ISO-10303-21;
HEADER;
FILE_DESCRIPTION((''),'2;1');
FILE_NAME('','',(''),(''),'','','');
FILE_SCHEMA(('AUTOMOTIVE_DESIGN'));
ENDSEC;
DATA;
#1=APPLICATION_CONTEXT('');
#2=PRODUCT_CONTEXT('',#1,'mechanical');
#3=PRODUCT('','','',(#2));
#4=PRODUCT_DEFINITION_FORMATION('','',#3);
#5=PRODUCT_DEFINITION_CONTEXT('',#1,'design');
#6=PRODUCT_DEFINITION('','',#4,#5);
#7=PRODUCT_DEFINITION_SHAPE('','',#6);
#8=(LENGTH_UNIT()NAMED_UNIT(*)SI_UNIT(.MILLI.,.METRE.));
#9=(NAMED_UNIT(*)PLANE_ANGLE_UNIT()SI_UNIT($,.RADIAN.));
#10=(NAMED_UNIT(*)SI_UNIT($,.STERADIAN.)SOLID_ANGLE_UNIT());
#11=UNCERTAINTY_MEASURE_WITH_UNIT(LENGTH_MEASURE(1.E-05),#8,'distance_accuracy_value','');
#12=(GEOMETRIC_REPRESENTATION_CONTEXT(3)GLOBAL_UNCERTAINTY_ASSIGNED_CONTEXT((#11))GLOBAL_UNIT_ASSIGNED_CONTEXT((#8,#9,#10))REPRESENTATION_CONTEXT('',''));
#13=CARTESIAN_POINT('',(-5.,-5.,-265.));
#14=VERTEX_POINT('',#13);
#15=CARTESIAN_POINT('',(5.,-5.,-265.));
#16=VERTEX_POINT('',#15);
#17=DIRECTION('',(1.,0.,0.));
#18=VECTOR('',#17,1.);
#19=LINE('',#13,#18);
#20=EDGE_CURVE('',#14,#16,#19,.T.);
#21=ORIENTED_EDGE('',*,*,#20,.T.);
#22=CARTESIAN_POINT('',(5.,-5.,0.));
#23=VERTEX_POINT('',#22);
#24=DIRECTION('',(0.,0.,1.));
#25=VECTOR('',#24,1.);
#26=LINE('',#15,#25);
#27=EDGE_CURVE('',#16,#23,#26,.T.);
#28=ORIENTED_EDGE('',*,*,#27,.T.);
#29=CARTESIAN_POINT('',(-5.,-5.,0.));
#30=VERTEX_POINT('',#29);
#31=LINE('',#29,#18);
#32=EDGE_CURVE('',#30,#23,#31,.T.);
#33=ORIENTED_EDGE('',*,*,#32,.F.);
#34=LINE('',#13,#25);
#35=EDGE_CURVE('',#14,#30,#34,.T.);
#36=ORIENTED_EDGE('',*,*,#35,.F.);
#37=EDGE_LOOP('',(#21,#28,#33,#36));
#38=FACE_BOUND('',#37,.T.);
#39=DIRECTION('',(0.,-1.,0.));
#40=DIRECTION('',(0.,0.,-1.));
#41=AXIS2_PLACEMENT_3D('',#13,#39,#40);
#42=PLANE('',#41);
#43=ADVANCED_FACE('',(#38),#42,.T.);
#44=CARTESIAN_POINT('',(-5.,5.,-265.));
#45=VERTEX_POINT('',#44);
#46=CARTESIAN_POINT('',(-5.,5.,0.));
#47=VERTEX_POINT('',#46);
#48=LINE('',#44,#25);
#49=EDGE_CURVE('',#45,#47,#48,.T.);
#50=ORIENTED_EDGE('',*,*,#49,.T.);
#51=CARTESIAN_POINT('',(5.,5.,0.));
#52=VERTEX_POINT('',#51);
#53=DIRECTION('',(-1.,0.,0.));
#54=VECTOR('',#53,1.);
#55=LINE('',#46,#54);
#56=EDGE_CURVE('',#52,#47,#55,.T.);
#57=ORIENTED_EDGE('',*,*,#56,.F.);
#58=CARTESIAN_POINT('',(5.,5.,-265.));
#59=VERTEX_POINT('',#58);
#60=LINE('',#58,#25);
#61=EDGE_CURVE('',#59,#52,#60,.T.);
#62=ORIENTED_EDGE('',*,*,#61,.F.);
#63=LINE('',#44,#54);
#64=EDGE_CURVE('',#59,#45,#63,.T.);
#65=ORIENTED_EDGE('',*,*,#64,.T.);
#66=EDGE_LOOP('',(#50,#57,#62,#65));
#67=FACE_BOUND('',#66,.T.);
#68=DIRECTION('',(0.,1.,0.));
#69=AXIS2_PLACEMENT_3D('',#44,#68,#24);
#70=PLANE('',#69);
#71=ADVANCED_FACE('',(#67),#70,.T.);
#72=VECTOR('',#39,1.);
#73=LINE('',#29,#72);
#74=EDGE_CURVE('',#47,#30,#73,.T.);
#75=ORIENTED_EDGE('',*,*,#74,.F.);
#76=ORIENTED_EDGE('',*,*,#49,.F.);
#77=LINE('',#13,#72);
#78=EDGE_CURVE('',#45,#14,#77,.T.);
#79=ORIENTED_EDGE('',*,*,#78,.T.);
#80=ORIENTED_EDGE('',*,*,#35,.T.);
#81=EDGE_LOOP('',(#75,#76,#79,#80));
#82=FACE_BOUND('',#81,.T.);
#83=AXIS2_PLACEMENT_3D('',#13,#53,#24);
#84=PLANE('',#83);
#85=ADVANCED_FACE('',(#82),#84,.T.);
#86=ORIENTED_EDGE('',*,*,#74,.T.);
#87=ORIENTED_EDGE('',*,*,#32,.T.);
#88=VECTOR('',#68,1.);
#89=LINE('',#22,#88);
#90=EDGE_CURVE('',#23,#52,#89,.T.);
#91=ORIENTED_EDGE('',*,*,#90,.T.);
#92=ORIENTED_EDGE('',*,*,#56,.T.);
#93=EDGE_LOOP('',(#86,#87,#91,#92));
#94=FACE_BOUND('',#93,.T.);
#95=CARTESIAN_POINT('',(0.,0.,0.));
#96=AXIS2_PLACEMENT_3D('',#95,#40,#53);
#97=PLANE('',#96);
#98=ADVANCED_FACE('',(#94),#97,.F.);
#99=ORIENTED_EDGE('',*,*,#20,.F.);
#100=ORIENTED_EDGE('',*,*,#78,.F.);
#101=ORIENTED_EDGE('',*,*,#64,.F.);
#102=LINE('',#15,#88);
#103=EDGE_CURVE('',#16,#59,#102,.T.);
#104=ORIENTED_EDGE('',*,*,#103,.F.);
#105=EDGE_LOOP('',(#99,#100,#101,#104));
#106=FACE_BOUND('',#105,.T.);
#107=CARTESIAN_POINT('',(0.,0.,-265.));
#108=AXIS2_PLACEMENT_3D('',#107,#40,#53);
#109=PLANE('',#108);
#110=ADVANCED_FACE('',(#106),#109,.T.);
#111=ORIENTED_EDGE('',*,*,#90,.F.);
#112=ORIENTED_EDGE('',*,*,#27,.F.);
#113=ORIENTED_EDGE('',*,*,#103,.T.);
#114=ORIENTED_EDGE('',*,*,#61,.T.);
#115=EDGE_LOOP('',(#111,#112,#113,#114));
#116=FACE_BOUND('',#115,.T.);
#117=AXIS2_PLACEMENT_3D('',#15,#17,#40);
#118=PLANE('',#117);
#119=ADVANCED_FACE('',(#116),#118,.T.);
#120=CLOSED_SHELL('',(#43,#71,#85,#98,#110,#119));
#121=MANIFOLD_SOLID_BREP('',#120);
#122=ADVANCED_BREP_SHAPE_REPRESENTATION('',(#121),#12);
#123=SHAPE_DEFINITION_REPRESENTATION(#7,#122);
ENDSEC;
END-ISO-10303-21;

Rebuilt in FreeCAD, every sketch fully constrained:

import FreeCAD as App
import Part
import Sketcher
from FreeCAD import Vector

doc = App.newDocument("Part")
body = doc.addObject("PartDesign::Body", "Body")

# Sketch on XY plane
sketch1 = body.newObject("Sketcher::SketchObject", "Sketch")
sketch1.AttachmentSupport = (doc.getObject("XY_Plane"), [""])
sketch1.MapMode = "FlatFace"
sketch1.addGeometry([
    Part.LineSegment(Vector(-5, 5, 0), Vector(-5, -5, 0)),
    Part.LineSegment(Vector(-5, -5, 0), Vector(5, -5, 0)),
    Part.LineSegment(Vector(5, -5, 0), Vector(5, 5, 0)),
    Part.LineSegment(Vector(5, 5, 0), Vector(-5, 5, 0)),
], False)
sketch1.addConstraint([
    Sketcher.Constraint("Coincident", 0, 2, 1, 1),
    Sketcher.Constraint("Coincident", 1, 2, 2, 1),
    Sketcher.Constraint("Coincident", 2, 2, 3, 1),
    Sketcher.Constraint("Coincident", 3, 2, 0, 1),
    Sketcher.Constraint("Vertical", 0),
    Sketcher.Constraint("Horizontal", 1),
    Sketcher.Constraint("Vertical", 2),
    Sketcher.Constraint("Horizontal", 3),
    Sketcher.Constraint("Symmetric", 0, 2, 2, 2, -1, 1),
    Sketcher.Constraint("Equal", 3, 0),
    Sketcher.Constraint("DistanceX", 1, 1, 1, 2, 10.0),
])
pad1 = body.newObject("PartDesign::Pad", "Pad")
pad1.Profile = sketch1
pad1.Length = 265
pad1.Reversed = True

doc.recompute()
